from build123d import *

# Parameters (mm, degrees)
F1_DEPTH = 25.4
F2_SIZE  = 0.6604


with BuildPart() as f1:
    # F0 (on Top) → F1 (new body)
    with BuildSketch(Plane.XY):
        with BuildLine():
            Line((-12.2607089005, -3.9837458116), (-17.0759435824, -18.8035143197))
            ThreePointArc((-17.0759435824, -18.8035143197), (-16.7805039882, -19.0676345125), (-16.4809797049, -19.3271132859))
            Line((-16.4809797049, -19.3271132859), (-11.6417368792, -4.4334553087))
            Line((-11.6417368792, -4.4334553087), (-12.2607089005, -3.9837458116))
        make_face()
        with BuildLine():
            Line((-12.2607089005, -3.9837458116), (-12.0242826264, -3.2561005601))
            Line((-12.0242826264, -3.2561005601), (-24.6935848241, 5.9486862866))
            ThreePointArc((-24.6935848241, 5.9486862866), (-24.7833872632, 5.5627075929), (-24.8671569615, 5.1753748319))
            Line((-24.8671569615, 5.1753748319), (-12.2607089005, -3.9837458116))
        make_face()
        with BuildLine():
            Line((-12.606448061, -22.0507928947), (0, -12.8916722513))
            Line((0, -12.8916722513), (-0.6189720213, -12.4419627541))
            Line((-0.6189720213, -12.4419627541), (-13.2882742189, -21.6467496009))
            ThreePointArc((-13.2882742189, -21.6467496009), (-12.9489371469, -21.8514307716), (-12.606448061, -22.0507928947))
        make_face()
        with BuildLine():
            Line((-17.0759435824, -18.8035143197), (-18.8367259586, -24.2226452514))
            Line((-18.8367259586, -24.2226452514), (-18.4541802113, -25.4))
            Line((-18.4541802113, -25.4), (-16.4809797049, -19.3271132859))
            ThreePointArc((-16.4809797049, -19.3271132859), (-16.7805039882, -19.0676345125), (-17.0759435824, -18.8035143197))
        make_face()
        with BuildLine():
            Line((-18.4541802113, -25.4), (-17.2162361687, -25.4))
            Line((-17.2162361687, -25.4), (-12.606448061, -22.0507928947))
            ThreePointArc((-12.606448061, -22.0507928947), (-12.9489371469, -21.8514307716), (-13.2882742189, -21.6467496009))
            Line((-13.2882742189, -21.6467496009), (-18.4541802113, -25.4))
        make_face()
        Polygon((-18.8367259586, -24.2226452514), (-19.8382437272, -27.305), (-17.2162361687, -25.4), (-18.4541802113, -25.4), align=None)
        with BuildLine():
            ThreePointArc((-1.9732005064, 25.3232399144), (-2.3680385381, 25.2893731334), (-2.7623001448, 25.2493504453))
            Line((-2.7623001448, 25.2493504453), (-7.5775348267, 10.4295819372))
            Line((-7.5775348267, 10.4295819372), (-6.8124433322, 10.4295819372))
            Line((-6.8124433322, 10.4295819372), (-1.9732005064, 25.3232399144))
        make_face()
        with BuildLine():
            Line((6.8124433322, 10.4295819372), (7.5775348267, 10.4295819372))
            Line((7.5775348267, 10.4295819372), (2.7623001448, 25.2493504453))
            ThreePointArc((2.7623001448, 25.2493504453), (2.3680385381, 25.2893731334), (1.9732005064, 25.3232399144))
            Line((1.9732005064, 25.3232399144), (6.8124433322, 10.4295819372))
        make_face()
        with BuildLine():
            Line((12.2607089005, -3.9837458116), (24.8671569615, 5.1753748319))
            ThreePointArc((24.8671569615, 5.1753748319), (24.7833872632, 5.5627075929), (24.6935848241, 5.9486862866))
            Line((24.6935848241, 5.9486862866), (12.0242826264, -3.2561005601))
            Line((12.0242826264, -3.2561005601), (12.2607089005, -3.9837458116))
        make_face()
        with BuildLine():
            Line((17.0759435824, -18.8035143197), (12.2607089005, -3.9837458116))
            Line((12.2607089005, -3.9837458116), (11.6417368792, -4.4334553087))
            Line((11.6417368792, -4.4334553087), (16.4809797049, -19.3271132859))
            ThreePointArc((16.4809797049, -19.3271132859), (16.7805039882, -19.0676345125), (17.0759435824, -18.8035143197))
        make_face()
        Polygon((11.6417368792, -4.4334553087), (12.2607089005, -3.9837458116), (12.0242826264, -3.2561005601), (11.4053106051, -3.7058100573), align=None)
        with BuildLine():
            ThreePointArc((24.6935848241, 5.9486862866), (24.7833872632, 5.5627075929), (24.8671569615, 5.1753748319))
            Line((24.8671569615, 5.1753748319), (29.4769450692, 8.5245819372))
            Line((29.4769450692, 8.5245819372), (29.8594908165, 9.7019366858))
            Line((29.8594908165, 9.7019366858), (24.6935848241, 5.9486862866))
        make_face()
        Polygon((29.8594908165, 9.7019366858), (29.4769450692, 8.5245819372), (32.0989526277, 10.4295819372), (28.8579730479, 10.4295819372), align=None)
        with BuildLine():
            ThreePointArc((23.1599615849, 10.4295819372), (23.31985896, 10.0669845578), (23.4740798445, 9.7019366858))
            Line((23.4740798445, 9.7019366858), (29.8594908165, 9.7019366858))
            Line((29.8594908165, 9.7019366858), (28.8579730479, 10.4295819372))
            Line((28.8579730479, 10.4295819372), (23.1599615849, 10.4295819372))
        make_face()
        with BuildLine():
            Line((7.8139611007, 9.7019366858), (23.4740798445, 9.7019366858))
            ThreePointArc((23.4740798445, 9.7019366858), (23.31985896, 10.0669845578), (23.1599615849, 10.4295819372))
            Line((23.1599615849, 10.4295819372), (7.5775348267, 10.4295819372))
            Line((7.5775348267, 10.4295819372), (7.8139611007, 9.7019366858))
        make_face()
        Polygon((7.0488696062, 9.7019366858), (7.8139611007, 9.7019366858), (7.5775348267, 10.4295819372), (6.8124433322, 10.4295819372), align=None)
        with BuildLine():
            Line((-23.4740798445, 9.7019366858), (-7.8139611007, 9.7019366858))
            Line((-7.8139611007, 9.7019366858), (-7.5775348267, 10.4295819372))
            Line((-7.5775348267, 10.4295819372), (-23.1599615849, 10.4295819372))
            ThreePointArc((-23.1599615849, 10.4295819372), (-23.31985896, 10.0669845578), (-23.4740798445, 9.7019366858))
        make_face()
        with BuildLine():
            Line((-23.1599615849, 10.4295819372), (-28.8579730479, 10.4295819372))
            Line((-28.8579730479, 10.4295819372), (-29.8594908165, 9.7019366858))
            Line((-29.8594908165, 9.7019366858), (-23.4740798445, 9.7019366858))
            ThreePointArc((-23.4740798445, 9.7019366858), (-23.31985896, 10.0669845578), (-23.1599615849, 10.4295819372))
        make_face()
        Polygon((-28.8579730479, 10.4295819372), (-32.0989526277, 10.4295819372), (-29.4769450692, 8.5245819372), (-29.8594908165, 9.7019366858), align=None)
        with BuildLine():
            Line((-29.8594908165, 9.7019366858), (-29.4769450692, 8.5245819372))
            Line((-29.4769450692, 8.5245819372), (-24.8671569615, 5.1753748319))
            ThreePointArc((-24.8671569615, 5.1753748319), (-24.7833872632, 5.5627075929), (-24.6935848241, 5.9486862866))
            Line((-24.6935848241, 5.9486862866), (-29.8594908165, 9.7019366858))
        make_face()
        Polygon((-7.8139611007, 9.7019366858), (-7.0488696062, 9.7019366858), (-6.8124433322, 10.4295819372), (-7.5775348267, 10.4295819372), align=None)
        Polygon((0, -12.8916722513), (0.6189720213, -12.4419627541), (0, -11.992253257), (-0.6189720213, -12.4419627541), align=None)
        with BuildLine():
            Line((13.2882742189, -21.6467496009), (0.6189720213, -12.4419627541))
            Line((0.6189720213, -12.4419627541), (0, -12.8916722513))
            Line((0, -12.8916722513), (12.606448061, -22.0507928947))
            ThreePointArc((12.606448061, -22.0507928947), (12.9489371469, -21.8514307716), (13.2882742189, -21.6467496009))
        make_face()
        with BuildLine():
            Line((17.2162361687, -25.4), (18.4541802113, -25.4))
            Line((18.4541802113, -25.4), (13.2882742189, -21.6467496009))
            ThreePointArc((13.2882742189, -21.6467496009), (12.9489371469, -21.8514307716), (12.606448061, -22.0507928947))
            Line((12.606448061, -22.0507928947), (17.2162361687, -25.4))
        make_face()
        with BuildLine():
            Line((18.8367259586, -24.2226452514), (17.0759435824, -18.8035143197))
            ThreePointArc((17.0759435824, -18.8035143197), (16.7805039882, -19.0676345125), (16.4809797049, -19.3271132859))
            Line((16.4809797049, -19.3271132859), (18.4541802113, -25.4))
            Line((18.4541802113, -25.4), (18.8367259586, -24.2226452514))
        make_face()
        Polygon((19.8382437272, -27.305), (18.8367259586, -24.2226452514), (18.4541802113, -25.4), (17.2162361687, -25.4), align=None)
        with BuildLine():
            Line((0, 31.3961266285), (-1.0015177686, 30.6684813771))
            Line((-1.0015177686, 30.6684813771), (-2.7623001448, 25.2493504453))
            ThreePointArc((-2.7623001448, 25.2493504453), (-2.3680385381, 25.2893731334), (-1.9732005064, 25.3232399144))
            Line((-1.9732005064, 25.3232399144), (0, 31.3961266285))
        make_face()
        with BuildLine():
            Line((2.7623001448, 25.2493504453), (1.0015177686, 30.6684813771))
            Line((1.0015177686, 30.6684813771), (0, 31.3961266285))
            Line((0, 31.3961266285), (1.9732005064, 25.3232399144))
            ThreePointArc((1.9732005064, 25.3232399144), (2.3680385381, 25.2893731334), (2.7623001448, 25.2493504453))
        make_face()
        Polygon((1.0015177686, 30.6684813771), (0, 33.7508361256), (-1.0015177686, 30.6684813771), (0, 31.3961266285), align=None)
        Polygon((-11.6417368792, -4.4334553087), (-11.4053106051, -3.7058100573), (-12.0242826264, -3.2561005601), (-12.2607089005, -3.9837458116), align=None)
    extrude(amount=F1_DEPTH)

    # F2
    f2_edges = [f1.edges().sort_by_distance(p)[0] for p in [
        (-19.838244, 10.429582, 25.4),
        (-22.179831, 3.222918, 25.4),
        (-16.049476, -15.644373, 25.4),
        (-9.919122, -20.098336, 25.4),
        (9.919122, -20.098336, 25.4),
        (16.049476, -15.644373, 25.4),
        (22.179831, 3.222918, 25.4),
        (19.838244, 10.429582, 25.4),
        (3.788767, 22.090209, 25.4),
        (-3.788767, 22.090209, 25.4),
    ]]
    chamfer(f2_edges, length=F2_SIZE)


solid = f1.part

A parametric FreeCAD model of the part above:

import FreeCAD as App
import Part
import Sketcher
from FreeCAD import Vector
Q = App.Units.Quantity


def edges_at(feature, points):
    """Names of the edges that pass closest to the given points."""
    edges = feature.Shape.Edges
    near = lambda p: min(range(len(edges)), key=lambda i: edges[i].distToShape(Part.Vertex(*p))[0])
    return sorted({f"Edge{near(p) + 1}" for p in points})

doc = App.newDocument("Part")
body = doc.addObject("PartDesign::Body", "Body")

# Sketch on XY plane
sketch1 = body.newObject("Sketcher::SketchObject", "Sketch")
sketch1.AttachmentSupport = (doc.getObject("XY_Plane"), [""])
sketch1.MapMode = "FlatFace"
sketch1.addGeometry([
    Part.LineSegment(Vector(-24.9, 5.2, 0), Vector(-12.3, -4, 0)),  # 0
    Part.LineSegment(Vector(-12.3, -4, 0), Vector(-17.1, -18.8, 0)),  # 1
    Part.LineSegment(Vector(-17.1, -18.8, 0), Vector(-18.8, -24.2, 0)),  # 2
    Part.LineSegment(Vector(-18.8, -24.2, 0), Vector(-19.8, -27.3, 0)),  # 3
    Part.LineSegment(Vector(-19.8, -27.3, 0), Vector(-17.2, -25.4, 0)),  # 4
    Part.LineSegment(Vector(-17.2, -25.4, 0), Vector(-12.6, -22.1, 0)),  # 5
    Part.LineSegment(Vector(-12.6, -22.1, 0), Vector(0, -12.9, 0)),  # 6
    Part.LineSegment(Vector(0, -12.9, 0), Vector(12.6, -22.1, 0)),  # 7
    Part.LineSegment(Vector(12.6, -22.1, 0), Vector(17.2, -25.4, 0)),  # 8
    Part.LineSegment(Vector(17.2, -25.4, 0), Vector(19.8, -27.3, 0)),  # 9
    Part.LineSegment(Vector(19.8, -27.3, 0), Vector(18.8, -24.2, 0)),  # 10
    Part.LineSegment(Vector(18.8, -24.2, 0), Vector(17.1, -18.8, 0)),  # 11
    Part.LineSegment(Vector(17.1, -18.8, 0), Vector(12.3, -4, 0)),  # 12
    Part.LineSegment(Vector(12.3, -4, 0), Vector(24.9, 5.2, 0)),  # 13
    Part.LineSegment(Vector(24.9, 5.2, 0), Vector(29.5, 8.5, 0)),  # 14
    Part.LineSegment(Vector(29.5, 8.5, 0), Vector(32.1, 10.4, 0)),  # 15
    Part.LineSegment(Vector(32.1, 10.4, 0), Vector(7.6, 10.4, 0)),  # 16
    Part.LineSegment(Vector(7.6, 10.4, 0), Vector(2.8, 25.2, 0)),  # 17
    Part.LineSegment(Vector(2.8, 25.2, 0), Vector(1, 30.7, 0)),  # 18
    Part.LineSegment(Vector(1, 30.7, 0), Vector(0, 33.8, 0)),  # 19
    Part.LineSegment(Vector(0, 33.8, 0), Vector(-1, 30.7, 0)),  # 20
    Part.LineSegment(Vector(-1, 30.7, 0), Vector(-2.8, 25.2, 0)),  # 21
    Part.LineSegment(Vector(-2.8, 25.2, 0), Vector(-7.6, 10.4, 0)),  # 22
    Part.LineSegment(Vector(-7.6, 10.4, 0), Vector(-32.1, 10.4, 0)),  # 23
    Part.LineSegment(Vector(-32.1, 10.4, 0), Vector(-29.5, 8.5, 0)),  # 24
    Part.LineSegment(Vector(-29.5, 8.5, 0), Vector(-24.9, 5.2, 0)),  # 25
    Part.LineSegment(Vector(-16.5, -19.3, 0), Vector(-11.6, -4.4, 0)),  # 26
    Part.LineSegment(Vector(-11.6, -4.4, 0), Vector(-11.4, -3.7, 0)),  # 27
    Part.LineSegment(Vector(-11.4, -3.7, 0), Vector(-12, -3.3, 0)),  # 28
    Part.LineSegment(Vector(-12, -3.3, 0), Vector(-24.7, 5.9, 0)),  # 29
    Part.LineSegment(Vector(-24.7, 5.9, 0), Vector(-29.9, 9.7, 0)),  # 30
    Part.LineSegment(Vector(-29.9, 9.7, 0), Vector(-7, 9.7, 0)),  # 31
    Part.LineSegment(Vector(-7, 9.7, 0), Vector(-6.8, 10.4, 0)),  # 32
    Part.LineSegment(Vector(-6.8, 10.4, 0), Vector(-2, 25.3, 0)),  # 33
    Part.LineSegment(Vector(-2, 25.3, 0), Vector(0, 31.4, 0)),  # 34
    Part.LineSegment(Vector(0, 31.4, 0), Vector(2, 25.3, 0)),  # 35
    Part.LineSegment(Vector(2, 25.3, 0), Vector(6.8, 10.4, 0)),  # 36
    Part.LineSegment(Vector(6.8, 10.4, 0), Vector(7, 9.7, 0)),  # 37
    Part.LineSegment(Vector(7, 9.7, 0), Vector(29.9, 9.7, 0)),  # 38
    Part.LineSegment(Vector(29.9, 9.7, 0), Vector(24.7, 5.9, 0)),  # 39
    Part.LineSegment(Vector(24.7, 5.9, 0), Vector(12, -3.3, 0)),  # 40
    Part.LineSegment(Vector(12, -3.3, 0), Vector(11.4, -3.7, 0)),  # 41
    Part.LineSegment(Vector(11.4, -3.7, 0), Vector(11.6, -4.4, 0)),  # 42
    Part.LineSegment(Vector(11.6, -4.4, 0), Vector(16.5, -19.3, 0)),  # 43
    Part.LineSegment(Vector(16.5, -19.3, 0), Vector(18.5, -25.4, 0)),  # 44
    Part.LineSegment(Vector(18.5, -25.4, 0), Vector(13.3, -21.6, 0)),  # 45
    Part.LineSegment(Vector(13.3, -21.6, 0), Vector(0.6, -12.4, 0)),  # 46
    Part.LineSegment(Vector(0.6, -12.4, 0), Vector(0, -12, 0)),  # 47
    Part.LineSegment(Vector(0, -12, 0), Vector(-0.6, -12.4, 0)),  # 48
    Part.LineSegment(Vector(-0.6, -12.4, 0), Vector(-13.3, -21.6, 0)),  # 49
    Part.LineSegment(Vector(-13.3, -21.6, 0), Vector(-18.5, -25.4, 0)),  # 50
    Part.LineSegment(Vector(-18.5, -25.4, 0), Vector(-16.5, -19.3, 0)),  # 51
], False)
sketch1.addConstraint([
    Sketcher.Constraint("Coincident", 0, 2, 1, 1),
    Sketcher.Constraint("Coincident", 1, 2, 2, 1),
    Sketcher.Constraint("Coincident", 2, 2, 3, 1),
    Sketcher.Constraint("Coincident", 3, 2, 4, 1),
    Sketcher.Constraint("Coincident", 4, 2, 5, 1),
    Sketcher.Constraint("Coincident", 5, 2, 6, 1),
    Sketcher.Constraint("Coincident", 6, 2, 7, 1),
    Sketcher.Constraint("Coincident", 7, 2, 8, 1),
    Sketcher.Constraint("Coincident", 8, 2, 9, 1),
    Sketcher.Constraint("Coincident", 9, 2, 10, 1),
    Sketcher.Constraint("Coincident", 10, 2, 11, 1),
    Sketcher.Constraint("Coincident", 11, 2, 12, 1),
    Sketcher.Constraint("Coincident", 12, 2, 13, 1),
    Sketcher.Constraint("Coincident", 13, 2, 14, 1),
    Sketcher.Constraint("Coincident", 14, 2, 15, 1),
    Sketcher.Constraint("Coincident", 15, 2, 16, 1),
    Sketcher.Constraint("Coincident", 16, 2, 17, 1),
    Sketcher.Constraint("Coincident", 17, 2, 18, 1),
    Sketcher.Constraint("Coincident", 18, 2, 19, 1),
    Sketcher.Constraint("Coincident", 19, 2, 20, 1),
    Sketcher.Constraint("Coincident", 20, 2, 21, 1),
    Sketcher.Constraint("Coincident", 21, 2, 22, 1),
    Sketcher.Constraint("Coincident", 22, 2, 23, 1),
    Sketcher.Constraint("Coincident", 23, 2, 24, 1),
    Sketcher.Constraint("Coincident", 24, 2, 25, 1),
    Sketcher.Constraint("Coincident", 25, 2, 0, 1),
    Sketcher.Constraint("Coincident", 26, 2, 27, 1),
    Sketcher.Constraint("Coincident", 27, 2, 28, 1),
    Sketcher.Constraint("Coincident", 28, 2, 29, 1),
    Sketcher.Constraint("Coincident", 29, 2, 30, 1),
    Sketcher.Constraint("Coincident", 30, 2, 31, 1),
    Sketcher.Constraint("Coincident", 31, 2, 32, 1),
    Sketcher.Constraint("Coincident", 32, 2, 33, 1),
    Sketcher.Constraint("Coincident", 33, 2, 34, 1),
    Sketcher.Constraint("Coincident", 34, 2, 35, 1),
    Sketcher.Constraint("Coincident", 35, 2, 36, 1),
    Sketcher.Constraint("Coincident", 36, 2, 37, 1),
    Sketcher.Constraint("Coincident", 37, 2, 38, 1),
    Sketcher.Constraint("Coincident", 38, 2, 39, 1),
    Sketcher.Constraint("Coincident", 39, 2, 40, 1),
    Sketcher.Constraint("Coincident", 40, 2, 41, 1),
    Sketcher.Constraint("Coincident", 41, 2, 42, 1),
    Sketcher.Constraint("Coincident", 42, 2, 43, 1),
    Sketcher.Constraint("Coincident", 43, 2, 44, 1),
    Sketcher.Constraint("Coincident", 44, 2, 45, 1),
    Sketcher.Constraint("Coincident", 45, 2, 46, 1),
    Sketcher.Constraint("Coincident", 46, 2, 47, 1),
    Sketcher.Constraint("Coincident", 47, 2, 48, 1),
    Sketcher.Constraint("Coincident", 48, 2, 49, 1),
    Sketcher.Constraint("Coincident", 49, 2, 50, 1),
    Sketcher.Constraint("Coincident", 50, 2, 51, 1),
    Sketcher.Constraint("Coincident", 51, 2, 26, 1),
    Sketcher.Constraint("Horizontal", 16),
    Sketcher.Constraint("Horizontal", 23),
    Sketcher.Constraint("Horizontal", 31),
    Sketcher.Constraint("Horizontal", 38),
    Sketcher.Constraint("Symmetric", 5, 2, 7, 2, -2),
    Sketcher.Constraint("Symmetric", 4, 2, 8, 2, -2),
    Sketcher.Constraint("Symmetric", 3, 2, 9, 2, -2),
    Sketcher.Constraint("Symmetric", 2, 2, 10, 2, -2),
    Sketcher.Constraint("Symmetric", 1, 2, 11, 2, -2),
    Sketcher.Constraint("Symmetric", 0, 2, 12, 2, -2),
    Sketcher.Constraint("Symmetric", 18, 2, 20, 2, -2),
    Sketcher.Constraint("Symmetric", 17, 2, 21, 2, -2),
    Sketcher.Constraint("Symmetric", 16, 2, 22, 2, -2),
    Sketcher.Constraint("Symmetric", 14, 2, 24, 2, -2),
    Sketcher.Constraint("Symmetric", 13, 2, 25, 2, -2),
    Sketcher.Constraint("Symmetric", 33, 2, 35, 2, -2),
    Sketcher.Constraint("Symmetric", 32, 2, 36, 2, -2),
    Sketcher.Constraint("Symmetric", 31, 2, 37, 2, -2),
    Sketcher.Constraint("Symmetric", 29, 2, 39, 2, -2),
    Sketcher.Constraint("Symmetric", 28, 2, 40, 2, -2),
    Sketcher.Constraint("Symmetric", 27, 2, 41, 2, -2),
    Sketcher.Constraint("Symmetric", 26, 2, 42, 2, -2),
    Sketcher.Constraint("Symmetric", 46, 2, 48, 2, -2),
    Sketcher.Constraint("Symmetric", 45, 2, 49, 2, -2),
    Sketcher.Constraint("Symmetric", 44, 2, 50, 2, -2),
    Sketcher.Constraint("Symmetric", 43, 2, 51, 2, -2),
    Sketcher.Constraint("PointOnObject", 6, 2, -2),
    Sketcher.Constraint("PointOnObject", 19, 2, -2),
    Sketcher.Constraint("PointOnObject", 34, 2, -2),
    Sketcher.Constraint("PointOnObject", 47, 2, -2),
    Sketcher.Constraint("Parallel", 1, 2),
    Sketcher.Constraint("Parallel", 2, 3),
    Sketcher.Constraint("Parallel", 4, 5),
    Sketcher.Constraint("Parallel", 5, 6),
    Sketcher.Constraint("Parallel", 0, 7),
    Sketcher.Constraint("Parallel", 13, 14),
    Sketcher.Constraint("Parallel", 14, 15),
    Sketcher.Constraint("Parallel", 12, 17),
    Sketcher.Constraint("Parallel", 17, 18),
    Sketcher.Constraint("Parallel", 18, 19),
    Sketcher.Constraint("Parallel", 9, 24),
    Sketcher.Constraint("Parallel", 22, 26),
    Sketcher.Constraint("Parallel", 26, 27),
    Sketcher.Constraint("Parallel", 25, 28),
    Sketcher.Constraint("Parallel", 28, 29),
    Sketcher.Constraint("Parallel", 29, 30),
    Sketcher.Constraint("Parallel", 27, 32),
    Sketcher.Constraint("Parallel", 32, 33),
    Sketcher.Constraint("Parallel", 33, 34),
    Sketcher.Constraint("Parallel", 15, 39),
    Sketcher.Constraint("Parallel", 43, 44),
    Sketcher.Constraint("Parallel", 30, 45),
    Sketcher.Constraint("Parallel", 45, 46),
    Sketcher.Constraint("Parallel", 46, 47),
    Sketcher.Constraint("Horizontal", 23, 2, 32, 2),
    Sketcher.Constraint("Horizontal", 8, 2, 44, 2),
    Sketcher.Constraint("Equal", 0, 1),
    Sketcher.Constraint("Equal", 3, 4),
    Sketcher.Constraint("Equal", 2, 5),
    Sketcher.Constraint("Equal", 1, 6),
    Sketcher.Constraint("Equal", 11, 14),
    Sketcher.Constraint("Equal", 10, 15),
    Sketcher.Constraint("Equal", 13, 17),
    Sketcher.Constraint("Equal", 14, 18),
    Sketcher.Constraint("Equal", 15, 19),
    Sketcher.Constraint("Equal", 27, 28),
    Sketcher.Constraint("Equal", 26, 29),
    Sketcher.Constraint("Equal", 28, 32),
    Sketcher.Constraint("Equal", 29, 33),
    Sketcher.Constraint("Equal", 30, 34),
    Sketcher.Constraint("Equal", 39, 44),
    Sketcher.Constraint("Equal", 44, 45),
    Sketcher.Constraint("Equal", 43, 46),
    Sketcher.Constraint("Equal", 42, 47),
    Sketcher.Constraint("DistanceY", 4, 2, -1, 1, Q("1 in")),
    Sketcher.Constraint("Angle", 0, Q("-36 deg")),
    Sketcher.Constraint("Angle", 1, Q("-108 deg")),
    Sketcher.Constraint("DistanceY", 3, 2, -1, 1, Q("1.075 in")),
    Sketcher.Constraint("DistanceX", 27, 2, 22, 2, Q("0.1506998 in")),
    Sketcher.Constraint("DistanceX", 31, 1, 31, 2, 22.810621),
    Sketcher.Constraint("DistanceX", -1, 1, 17, 2, 2.7623),
    Sketcher.Constraint("DistanceX", 33, 2, -1, 1, 1.973201),
])
pad1 = body.newObject("PartDesign::Pad", "Pad")
pad1.Profile = sketch1
pad1.Length = Q("1 in")
doc.recompute()

chamfer = body.newObject("PartDesign::Chamfer", "Chamfer")
chamfer.Base = (pad1, edges_at(pad1, [
    (-19.838, 10.43, 25.4),
    (-18.564, 0.596, 25.4),
    (-14.668, -11.394, 25.4),
    (-6.303, -17.471, 25.4),
    (6.303, -17.471, 25.4),
    (14.668, -11.394, 25.4),
    (18.564, 0.596, 25.4),
    (19.838, 10.43, 25.4),
    (5.17, 17.839, 25.4),
    (-5.17, 17.839, 25.4),
]))
chamfer.Size = Q("0.026 in")

doc.recompute()
